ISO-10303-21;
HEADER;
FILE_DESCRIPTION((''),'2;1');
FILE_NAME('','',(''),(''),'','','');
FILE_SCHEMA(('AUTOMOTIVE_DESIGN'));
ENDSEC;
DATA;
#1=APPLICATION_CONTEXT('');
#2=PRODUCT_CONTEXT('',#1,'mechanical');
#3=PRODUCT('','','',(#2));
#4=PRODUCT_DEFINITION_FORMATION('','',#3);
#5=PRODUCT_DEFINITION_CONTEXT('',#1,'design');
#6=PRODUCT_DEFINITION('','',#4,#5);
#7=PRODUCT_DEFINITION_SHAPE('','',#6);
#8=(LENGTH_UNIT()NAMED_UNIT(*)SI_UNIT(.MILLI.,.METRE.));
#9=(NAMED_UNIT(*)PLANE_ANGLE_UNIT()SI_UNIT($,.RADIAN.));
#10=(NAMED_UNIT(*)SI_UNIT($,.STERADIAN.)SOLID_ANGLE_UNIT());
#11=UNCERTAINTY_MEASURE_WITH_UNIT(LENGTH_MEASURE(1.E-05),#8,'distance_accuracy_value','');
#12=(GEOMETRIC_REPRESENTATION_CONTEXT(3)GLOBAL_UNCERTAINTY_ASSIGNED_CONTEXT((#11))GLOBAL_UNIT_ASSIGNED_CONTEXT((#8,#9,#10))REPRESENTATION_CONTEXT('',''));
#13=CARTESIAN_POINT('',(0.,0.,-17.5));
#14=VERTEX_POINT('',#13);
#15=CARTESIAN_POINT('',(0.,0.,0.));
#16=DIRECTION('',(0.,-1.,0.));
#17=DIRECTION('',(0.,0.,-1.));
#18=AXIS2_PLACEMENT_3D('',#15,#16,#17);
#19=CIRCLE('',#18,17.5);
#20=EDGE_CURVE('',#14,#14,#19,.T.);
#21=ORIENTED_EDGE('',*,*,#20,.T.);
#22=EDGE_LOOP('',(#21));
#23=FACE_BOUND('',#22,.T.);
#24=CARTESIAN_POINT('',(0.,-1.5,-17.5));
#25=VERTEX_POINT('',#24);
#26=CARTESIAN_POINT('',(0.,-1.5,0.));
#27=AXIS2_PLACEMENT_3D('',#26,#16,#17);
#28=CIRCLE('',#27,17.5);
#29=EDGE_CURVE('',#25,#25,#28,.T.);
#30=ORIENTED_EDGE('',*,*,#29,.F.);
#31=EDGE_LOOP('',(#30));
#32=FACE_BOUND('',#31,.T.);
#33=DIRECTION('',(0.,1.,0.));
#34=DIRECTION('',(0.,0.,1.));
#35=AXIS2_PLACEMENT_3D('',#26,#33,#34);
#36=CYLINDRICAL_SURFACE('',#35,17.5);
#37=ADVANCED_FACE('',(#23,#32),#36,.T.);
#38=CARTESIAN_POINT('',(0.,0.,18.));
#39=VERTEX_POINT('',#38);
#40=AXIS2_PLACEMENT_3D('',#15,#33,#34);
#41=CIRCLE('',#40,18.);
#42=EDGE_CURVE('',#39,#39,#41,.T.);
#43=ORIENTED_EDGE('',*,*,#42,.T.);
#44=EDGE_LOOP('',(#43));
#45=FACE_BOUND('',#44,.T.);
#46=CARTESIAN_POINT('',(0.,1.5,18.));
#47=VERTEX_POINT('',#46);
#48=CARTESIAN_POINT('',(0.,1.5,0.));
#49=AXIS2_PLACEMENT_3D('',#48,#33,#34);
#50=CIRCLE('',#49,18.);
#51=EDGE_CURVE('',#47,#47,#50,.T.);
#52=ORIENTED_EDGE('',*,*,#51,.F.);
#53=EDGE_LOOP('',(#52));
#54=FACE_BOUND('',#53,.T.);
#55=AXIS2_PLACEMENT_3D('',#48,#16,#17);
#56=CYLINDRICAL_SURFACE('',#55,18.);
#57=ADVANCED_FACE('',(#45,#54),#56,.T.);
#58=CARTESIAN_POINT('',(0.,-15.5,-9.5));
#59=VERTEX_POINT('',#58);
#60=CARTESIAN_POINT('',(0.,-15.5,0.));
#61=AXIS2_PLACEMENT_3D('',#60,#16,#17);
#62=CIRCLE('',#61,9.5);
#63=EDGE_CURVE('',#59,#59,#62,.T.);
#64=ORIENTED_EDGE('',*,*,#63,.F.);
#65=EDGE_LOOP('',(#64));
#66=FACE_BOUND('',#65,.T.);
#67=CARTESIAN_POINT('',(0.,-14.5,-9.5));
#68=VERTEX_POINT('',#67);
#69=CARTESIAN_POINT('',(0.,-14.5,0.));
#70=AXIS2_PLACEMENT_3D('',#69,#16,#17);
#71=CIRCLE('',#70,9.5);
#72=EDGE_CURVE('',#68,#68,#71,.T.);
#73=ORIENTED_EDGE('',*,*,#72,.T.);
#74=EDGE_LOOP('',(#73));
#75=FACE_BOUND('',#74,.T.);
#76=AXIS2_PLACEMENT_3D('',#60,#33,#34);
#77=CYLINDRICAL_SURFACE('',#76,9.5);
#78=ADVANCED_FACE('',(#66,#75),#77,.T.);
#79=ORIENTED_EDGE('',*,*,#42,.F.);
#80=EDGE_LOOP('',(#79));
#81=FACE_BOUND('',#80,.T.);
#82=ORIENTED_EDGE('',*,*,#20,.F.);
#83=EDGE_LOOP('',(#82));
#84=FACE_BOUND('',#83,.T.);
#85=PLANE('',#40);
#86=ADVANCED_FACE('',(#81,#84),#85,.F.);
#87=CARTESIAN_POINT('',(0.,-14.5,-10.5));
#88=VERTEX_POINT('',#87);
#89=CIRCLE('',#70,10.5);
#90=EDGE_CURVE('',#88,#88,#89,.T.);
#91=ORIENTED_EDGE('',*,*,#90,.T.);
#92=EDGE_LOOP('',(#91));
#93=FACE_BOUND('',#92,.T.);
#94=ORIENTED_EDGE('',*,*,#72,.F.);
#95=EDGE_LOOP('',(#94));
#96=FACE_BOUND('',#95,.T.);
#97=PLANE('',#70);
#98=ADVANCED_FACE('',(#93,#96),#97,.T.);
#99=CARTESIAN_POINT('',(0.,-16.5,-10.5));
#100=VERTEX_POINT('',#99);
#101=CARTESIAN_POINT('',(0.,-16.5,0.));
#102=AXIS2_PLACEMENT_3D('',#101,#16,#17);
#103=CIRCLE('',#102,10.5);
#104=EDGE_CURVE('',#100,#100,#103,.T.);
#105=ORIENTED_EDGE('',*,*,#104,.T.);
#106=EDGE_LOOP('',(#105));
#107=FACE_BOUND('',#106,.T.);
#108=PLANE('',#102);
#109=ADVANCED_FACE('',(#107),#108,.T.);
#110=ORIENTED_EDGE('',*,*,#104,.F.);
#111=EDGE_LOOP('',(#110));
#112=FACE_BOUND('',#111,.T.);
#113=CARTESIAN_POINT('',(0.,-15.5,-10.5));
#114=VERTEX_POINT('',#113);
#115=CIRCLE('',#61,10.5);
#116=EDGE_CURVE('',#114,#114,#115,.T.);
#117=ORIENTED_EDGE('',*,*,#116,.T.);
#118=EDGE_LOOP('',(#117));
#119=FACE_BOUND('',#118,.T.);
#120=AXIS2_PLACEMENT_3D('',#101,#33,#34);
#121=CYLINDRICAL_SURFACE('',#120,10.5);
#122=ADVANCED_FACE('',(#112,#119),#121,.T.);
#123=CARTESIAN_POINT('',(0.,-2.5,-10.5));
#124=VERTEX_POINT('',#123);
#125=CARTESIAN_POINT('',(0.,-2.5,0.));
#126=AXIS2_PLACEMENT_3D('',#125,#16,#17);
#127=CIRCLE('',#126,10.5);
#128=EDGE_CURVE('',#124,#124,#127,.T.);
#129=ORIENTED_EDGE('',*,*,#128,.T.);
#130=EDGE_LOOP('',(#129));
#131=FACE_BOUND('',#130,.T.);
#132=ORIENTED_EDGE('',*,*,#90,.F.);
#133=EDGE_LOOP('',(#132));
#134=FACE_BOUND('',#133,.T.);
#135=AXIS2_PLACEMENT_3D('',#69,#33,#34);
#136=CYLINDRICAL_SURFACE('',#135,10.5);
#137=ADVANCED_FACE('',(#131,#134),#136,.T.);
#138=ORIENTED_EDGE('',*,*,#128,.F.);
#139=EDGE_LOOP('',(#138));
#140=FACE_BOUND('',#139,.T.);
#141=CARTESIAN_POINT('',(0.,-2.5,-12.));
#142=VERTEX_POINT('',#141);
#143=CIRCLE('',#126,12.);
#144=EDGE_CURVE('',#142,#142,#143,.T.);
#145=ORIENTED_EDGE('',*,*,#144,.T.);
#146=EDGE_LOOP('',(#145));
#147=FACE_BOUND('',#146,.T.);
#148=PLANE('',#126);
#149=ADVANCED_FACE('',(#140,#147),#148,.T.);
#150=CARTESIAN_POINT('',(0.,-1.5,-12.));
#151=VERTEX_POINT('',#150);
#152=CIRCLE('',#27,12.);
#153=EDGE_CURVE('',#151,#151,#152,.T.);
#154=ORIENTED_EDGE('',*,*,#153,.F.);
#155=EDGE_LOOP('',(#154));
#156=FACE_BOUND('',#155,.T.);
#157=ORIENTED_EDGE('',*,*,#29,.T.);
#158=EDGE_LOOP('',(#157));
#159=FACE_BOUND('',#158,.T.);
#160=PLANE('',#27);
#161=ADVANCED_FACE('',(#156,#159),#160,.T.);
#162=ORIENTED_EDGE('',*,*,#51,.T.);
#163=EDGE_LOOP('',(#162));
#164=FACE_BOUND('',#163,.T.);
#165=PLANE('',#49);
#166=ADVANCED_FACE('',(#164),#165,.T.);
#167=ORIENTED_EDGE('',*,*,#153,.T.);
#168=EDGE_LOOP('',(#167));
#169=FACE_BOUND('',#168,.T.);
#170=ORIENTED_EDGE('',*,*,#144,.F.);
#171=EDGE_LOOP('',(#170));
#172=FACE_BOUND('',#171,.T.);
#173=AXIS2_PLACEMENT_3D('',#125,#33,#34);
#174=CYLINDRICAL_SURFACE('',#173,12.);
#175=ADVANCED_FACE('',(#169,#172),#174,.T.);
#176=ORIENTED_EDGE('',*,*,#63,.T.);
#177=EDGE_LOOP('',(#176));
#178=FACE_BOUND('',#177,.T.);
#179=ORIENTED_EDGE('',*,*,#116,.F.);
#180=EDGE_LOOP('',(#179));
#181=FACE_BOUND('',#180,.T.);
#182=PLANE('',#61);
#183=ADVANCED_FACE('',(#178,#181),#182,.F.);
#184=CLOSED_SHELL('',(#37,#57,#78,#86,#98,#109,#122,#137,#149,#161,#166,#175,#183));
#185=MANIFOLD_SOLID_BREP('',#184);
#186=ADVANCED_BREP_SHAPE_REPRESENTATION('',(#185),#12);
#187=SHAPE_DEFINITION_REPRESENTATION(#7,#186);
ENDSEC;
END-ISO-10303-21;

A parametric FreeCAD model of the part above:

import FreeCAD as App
import Part
import Sketcher
from FreeCAD import Vector

doc = App.newDocument("Part")
params = doc.addObject("Spreadsheet::Sheet", "Params")
for row, (alias, value) in enumerate([
    ("sketch1_diameter", "36 mm"),
    ("pad1_length", "1.5 mm"),
    ("sketch2_diameter", "35 mm"),
    ("pad2_length", "1.5 mm"),
    ("sketch3_diameter", "24 mm"),
    ("pad3_length", "1 mm"),
    ("sketch4_diameter", "21 mm"),
    ("pad4_length", "12 mm"),
    ("sketch5_diameter", "19 mm"),
    ("pad5_length", "1 mm"),
    ("sketch6_diameter", "21 mm"),
    ("pad6_length", "1 mm"),
], start=1):
    params.set(f"A{row}", alias)
    params.set(f"B{row}", "=" + value)
    params.setAlias(f"B{row}", alias)

body = doc.addObject("PartDesign::Body", "Body")

# Sketch on XZ plane
sketch1 = doc.addObject("Sketcher::SketchObject", "Sketch")
body.addObject(sketch1)
sketch1.AttachmentSupport = (doc.XZ_Plane, [""])
sketch1.MapMode = "FlatFace"
sketch1.addGeometry(Part.Circle(Vector(0, 0, 0), Vector(0, 0, 1), 18), False)
sketch1.addConstraint(Sketcher.Constraint("Coincident", 0, 3, -1, 1))
sketch1.addConstraint(Sketcher.Constraint("Diameter", 0, 36.0))
sketch1.setExpression("Constraints[1]", "Params.sketch1_diameter")
pad1 = doc.addObject("PartDesign::Pad", "Pad")
body.addObject(pad1)
pad1.Profile = sketch1
pad1.setExpression("Length", "Params.pad1_length")
pad1.Reversed = True

# Sketch on XZ plane
sketch2 = doc.addObject("Sketcher::SketchObject", "Sketch001")
body.addObject(sketch2)
sketch2.AttachmentSupport = (doc.XZ_Plane, [""])
sketch2.MapMode = "FlatFace"
sketch2.addGeometry(Part.Circle(Vector(0, 0, 0), Vector(0, 0, 1), 17.5), False)
sketch2.addConstraint(Sketcher.Constraint("Coincident", 0, 3, -1, 1))
sketch2.addConstraint(Sketcher.Constraint("Diameter", 0, 35.0))
sketch2.setExpression("Constraints[1]", "Params.sketch2_diameter")
pad2 = doc.addObject("PartDesign::Pad", "Pad001")
body.addObject(pad2)
pad2.Profile = sketch2
pad2.setExpression("Length", "Params.pad2_length")

# Sketch on XZ plane
sketch3 = doc.addObject("Sketcher::SketchObject", "Sketch002")
body.addObject(sketch3)
sketch3.AttachmentSupport = (doc.XZ_Plane, [""])
sketch3.MapMode = "FlatFace"
sketch3.AttachmentOffset = App.Placement(Vector(0, 0, 1.5), App.Rotation())
sketch3.addGeometry(Part.Circle(Vector(0, 0, 0), Vector(0, 0, 1), 12), False)
sketch3.addConstraint(Sketcher.Constraint("Coincident", 0, 3, -1, 1))
sketch3.addConstraint(Sketcher.Constraint("Diameter", 0, 24.0))
sketch3.setExpression("Constraints[1]", "Params.sketch3_diameter")
pad3 = doc.addObject("PartDesign::Pad", "Pad002")
body.addObject(pad3)
pad3.Profile = sketch3
pad3.setExpression("Length", "Params.pad3_length")

# Sketch on XZ plane
sketch4 = doc.addObject("Sketcher::SketchObject", "Sketch003")
body.addObject(sketch4)
sketch4.AttachmentSupport = (doc.XZ_Plane, [""])
sketch4.MapMode = "FlatFace"
sketch4.AttachmentOffset = App.Placement(Vector(0, 0, 2.5), App.Rotation())
sketch4.addGeometry(Part.Circle(Vector(0, 0, 0), Vector(0, 0, 1), 10.5), False)
sketch4.addConstraint(Sketcher.Constraint("Coincident", 0, 3, -1, 1))
sketch4.addConstraint(Sketcher.Constraint("Diameter", 0, 21.0))
sketch4.setExpression("Constraints[1]", "Params.sketch4_diameter")
pad4 = doc.addObject("PartDesign::Pad", "Pad003")
body.addObject(pad4)
pad4.Profile = sketch4
pad4.setExpression("Length", "Params.pad4_length")

# Sketch on XZ plane
sketch5 = doc.addObject("Sketcher::SketchObject", "Sketch004")
body.addObject(sketch5)
sketch5.AttachmentSupport = (doc.XZ_Plane, [""])
sketch5.MapMode = "FlatFace"
sketch5.AttachmentOffset = App.Placement(Vector(0, 0, 14.5), App.Rotation())
sketch5.addGeometry(Part.Circle(Vector(0, 0, 0), Vector(0, 0, 1), 9.5), False)
sketch5.addConstraint(Sketcher.Constraint("Coincident", 0, 3, -1, 1))
sketch5.addConstraint(Sketcher.Constraint("Diameter", 0, 19.0))
sketch5.setExpression("Constraints[1]", "Params.sketch5_diameter")
pad5 = doc.addObject("PartDesign::Pad", "Pad004")
body.addObject(pad5)
pad5.Profile = sketch5
pad5.setExpression("Length", "Params.pad5_length")

# Sketch on XZ plane
sketch6 = doc.addObject("Sketcher::SketchObject", "Sketch005")
body.addObject(sketch6)
sketch6.AttachmentSupport = (doc.XZ_Plane, [""])
sketch6.MapMode = "FlatFace"
sketch6.AttachmentOffset = App.Placement(Vector(0, 0, 15.5), App.Rotation())
sketch6.addGeometry(Part.Circle(Vector(0, 0, 0), Vector(0, 0, 1), 10.5), False)
sketch6.addConstraint(Sketcher.Constraint("Coincident", 0, 3, -1, 1))
sketch6.addConstraint(Sketcher.Constraint("Diameter", 0, 21.0))
sketch6.setExpression("Constraints[1]", "Params.sketch6_diameter")
pad6 = doc.addObject("PartDesign::Pad", "Pad005")
body.addObject(pad6)
pad6.Profile = sketch6
pad6.setExpression("Length", "Params.pad6_length")

doc.recompute()
